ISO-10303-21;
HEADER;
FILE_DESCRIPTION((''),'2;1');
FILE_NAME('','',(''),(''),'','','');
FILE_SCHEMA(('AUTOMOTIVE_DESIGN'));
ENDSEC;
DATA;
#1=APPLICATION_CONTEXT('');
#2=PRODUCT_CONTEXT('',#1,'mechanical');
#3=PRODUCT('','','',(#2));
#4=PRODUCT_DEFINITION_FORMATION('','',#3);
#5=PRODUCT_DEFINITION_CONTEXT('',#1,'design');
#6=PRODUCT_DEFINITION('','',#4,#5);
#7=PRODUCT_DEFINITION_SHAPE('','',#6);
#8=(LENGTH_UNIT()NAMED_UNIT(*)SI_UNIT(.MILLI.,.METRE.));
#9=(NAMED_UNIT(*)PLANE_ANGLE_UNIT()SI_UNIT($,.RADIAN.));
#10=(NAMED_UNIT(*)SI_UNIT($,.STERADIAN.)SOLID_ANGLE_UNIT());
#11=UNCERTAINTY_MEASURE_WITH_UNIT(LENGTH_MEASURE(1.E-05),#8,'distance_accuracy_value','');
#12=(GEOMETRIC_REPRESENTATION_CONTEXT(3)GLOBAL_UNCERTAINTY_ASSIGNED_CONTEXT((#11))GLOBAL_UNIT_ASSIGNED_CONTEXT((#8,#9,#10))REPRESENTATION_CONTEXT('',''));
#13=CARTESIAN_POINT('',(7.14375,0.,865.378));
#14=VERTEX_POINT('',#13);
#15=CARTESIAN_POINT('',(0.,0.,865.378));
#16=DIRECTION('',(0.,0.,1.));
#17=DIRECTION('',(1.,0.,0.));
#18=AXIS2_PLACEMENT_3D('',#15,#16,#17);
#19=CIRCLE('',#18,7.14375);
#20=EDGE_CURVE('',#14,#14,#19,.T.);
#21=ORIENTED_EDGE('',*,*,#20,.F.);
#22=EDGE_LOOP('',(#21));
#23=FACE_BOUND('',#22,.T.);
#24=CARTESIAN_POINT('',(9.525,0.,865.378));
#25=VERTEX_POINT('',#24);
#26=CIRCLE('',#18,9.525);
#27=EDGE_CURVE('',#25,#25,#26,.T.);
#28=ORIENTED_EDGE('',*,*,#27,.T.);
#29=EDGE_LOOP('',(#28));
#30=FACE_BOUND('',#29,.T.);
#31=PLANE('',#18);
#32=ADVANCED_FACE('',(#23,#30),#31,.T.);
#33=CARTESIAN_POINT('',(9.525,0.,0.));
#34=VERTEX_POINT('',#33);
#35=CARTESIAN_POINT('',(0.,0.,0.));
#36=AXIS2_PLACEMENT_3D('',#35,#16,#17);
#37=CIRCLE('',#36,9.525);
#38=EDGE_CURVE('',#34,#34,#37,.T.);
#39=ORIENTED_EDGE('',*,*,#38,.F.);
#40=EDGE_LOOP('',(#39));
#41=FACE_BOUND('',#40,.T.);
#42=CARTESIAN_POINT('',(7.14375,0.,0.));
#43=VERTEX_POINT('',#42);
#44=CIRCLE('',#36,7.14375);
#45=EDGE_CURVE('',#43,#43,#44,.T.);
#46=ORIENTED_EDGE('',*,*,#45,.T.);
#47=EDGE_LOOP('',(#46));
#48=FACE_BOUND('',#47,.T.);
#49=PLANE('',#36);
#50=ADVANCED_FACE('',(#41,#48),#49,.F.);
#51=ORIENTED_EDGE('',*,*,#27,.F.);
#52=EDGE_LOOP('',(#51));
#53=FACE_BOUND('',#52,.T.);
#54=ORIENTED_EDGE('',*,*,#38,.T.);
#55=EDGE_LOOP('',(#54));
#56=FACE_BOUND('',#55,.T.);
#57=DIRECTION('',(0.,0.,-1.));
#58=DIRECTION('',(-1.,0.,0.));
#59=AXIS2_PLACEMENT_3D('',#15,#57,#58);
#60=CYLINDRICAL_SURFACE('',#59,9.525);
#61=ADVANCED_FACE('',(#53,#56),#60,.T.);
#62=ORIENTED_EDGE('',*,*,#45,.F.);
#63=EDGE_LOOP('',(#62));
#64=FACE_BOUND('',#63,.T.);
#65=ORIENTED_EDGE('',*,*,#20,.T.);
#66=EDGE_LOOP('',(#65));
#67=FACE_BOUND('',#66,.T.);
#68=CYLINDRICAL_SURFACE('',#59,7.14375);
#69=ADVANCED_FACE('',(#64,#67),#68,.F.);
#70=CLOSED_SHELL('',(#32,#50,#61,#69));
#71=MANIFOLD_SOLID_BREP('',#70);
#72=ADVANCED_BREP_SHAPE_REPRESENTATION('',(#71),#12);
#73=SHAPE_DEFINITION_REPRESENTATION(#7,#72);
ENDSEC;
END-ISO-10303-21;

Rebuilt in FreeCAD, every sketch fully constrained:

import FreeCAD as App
import Part
import Sketcher
Q = App.Units.Quantity

doc = App.newDocument("Part")
body = doc.addObject("PartDesign::Body", "Body")

# Sketch on XY plane
sketch1 = body.newObject("Sketcher::SketchObject", "Sketch")
sketch1.AttachmentSupport = (doc.getObject("XY_Plane"), [""])
sketch1.MapMode = "FlatFace"
sketch1.addGeometry([
    Part.Circle(App.Vector(0, 0, 0), App.Vector(0, 0, 1), 10),
    Part.Circle(App.Vector(0, 0, 0), App.Vector(0, 0, 1), 7),
], False)
sketch1.addConstraint([
    Sketcher.Constraint("Coincident", 0, 3, -1, 1),
    Sketcher.Constraint("Coincident", 1, 3, -1, 1),
    Sketcher.Constraint("Diameter", 0, Q("0.75 in")),
    Sketcher.Constraint("Diameter", 1, Q("0.5625 in")),
])
pad1 = body.newObject("PartDesign::Pad", "Pad")
pad1.Profile = sketch1
pad1.Length = Q("34.07 in")

doc.recompute()
